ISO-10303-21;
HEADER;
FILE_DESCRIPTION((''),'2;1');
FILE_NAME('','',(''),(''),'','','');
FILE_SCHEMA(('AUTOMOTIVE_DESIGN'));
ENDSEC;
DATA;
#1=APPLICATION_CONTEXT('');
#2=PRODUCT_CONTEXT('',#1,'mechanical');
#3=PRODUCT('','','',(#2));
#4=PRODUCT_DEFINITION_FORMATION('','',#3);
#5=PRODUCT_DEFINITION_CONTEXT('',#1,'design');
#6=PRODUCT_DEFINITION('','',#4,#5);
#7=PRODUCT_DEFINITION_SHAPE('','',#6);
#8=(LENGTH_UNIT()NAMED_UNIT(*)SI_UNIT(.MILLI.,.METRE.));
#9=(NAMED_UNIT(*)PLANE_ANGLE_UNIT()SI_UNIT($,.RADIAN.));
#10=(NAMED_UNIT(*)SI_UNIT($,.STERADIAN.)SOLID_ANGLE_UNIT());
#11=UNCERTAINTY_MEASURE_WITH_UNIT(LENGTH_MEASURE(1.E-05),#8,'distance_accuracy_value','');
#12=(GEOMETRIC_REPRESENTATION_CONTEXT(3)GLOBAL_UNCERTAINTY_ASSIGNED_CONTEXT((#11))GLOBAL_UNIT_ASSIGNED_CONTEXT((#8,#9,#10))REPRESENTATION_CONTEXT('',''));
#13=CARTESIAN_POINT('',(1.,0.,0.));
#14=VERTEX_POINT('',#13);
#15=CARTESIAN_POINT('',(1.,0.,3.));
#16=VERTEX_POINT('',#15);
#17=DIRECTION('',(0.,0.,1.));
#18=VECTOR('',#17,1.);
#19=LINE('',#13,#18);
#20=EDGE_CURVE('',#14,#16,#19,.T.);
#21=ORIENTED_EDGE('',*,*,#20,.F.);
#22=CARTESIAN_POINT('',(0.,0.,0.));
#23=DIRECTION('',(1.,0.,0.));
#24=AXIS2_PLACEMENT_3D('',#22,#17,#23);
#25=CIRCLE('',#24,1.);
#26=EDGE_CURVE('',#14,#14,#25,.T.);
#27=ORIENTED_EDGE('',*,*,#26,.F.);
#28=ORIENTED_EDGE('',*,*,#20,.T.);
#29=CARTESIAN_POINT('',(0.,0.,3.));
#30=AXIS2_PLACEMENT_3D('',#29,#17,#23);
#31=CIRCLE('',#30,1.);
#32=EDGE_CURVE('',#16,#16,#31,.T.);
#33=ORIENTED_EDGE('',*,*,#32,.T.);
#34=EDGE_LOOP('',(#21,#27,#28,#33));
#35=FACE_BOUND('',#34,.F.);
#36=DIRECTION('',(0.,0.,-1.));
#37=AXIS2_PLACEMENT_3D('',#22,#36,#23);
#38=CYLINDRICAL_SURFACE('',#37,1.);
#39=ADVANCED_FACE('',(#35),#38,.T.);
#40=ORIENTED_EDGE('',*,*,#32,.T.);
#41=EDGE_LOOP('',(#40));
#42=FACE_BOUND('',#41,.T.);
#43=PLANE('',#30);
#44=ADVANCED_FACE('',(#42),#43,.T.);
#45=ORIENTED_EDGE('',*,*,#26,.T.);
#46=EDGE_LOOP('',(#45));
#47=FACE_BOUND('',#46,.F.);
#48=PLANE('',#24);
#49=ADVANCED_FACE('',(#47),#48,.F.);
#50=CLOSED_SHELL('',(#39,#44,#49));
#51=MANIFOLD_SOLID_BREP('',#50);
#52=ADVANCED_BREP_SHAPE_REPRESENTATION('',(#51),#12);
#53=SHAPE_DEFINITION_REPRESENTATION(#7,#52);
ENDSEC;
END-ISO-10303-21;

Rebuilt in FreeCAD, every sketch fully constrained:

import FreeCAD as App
import Part
import Sketcher
from FreeCAD import Vector

doc = App.newDocument("Part")
body = doc.addObject("PartDesign::Body", "Body")

sketch1 = body.newObject("Sketcher::SketchObject", "Sketch")
sketch1.AttachmentSupport = (doc.getObject("XY_Plane"), [""])
sketch1.MapMode = "FlatFace"
sketch1.addGeometry(Part.Circle(Vector(0, 0, 0), Vector(0, 0, 1), 1), False)
sketch1.addConstraint([
    Sketcher.Constraint("Coincident", 0, 3, -1, 1),
    Sketcher.Constraint("Diameter", 0, 2.0),
])
pad1 = body.newObject("PartDesign::Pad", "Pad")
pad1.Profile = sketch1
pad1.Length = 3

doc.recompute()
